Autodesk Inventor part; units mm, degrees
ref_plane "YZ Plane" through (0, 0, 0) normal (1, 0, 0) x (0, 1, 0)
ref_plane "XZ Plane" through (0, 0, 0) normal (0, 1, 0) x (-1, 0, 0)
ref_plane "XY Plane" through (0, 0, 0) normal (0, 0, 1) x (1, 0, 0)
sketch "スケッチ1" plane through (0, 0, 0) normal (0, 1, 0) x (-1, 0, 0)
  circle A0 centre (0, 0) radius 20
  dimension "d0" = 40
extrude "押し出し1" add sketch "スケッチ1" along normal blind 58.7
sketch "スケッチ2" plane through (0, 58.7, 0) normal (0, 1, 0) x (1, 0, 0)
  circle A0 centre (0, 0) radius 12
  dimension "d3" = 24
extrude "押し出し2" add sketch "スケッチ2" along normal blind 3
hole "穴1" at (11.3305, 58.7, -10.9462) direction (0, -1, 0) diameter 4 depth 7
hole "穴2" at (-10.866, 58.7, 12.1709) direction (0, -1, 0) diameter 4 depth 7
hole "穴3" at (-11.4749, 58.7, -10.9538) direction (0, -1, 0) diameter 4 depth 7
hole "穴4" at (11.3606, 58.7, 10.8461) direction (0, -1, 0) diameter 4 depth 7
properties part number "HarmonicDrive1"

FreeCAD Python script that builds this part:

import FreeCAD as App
import Part
import Sketcher

V = App.Vector

doc = App.newDocument("Part")
params = doc.addObject("Spreadsheet::Sheet", "Params")
for row, (alias, value) in enumerate([
    ("sketch1_diameter", "40 mm"),
    ("pad1_length", "58.7 mm"),
    ("sketch2_diameter", "24 mm"),
    ("pad2_length", "3 mm"),
    ("sketch3_diameter", "4 mm"),
    ("hole_diameter", "4 mm"),
    ("hole_depth", "7 mm"),
    ("sketch4_diameter", "4 mm"),
    ("hole2_diameter", "4 mm"),
    ("hole2_depth", "7 mm"),
    ("sketch5_diameter", "4 mm"),
    ("hole3_diameter", "4 mm"),
    ("hole3_depth", "7 mm"),
    ("sketch6_diameter", "4 mm"),
    ("hole4_diameter", "4 mm"),
    ("hole4_depth", "7 mm"),
], start=1):
    params.set(f"A{row}", alias)
    params.set(f"B{row}", "=" + value)
    params.setAlias(f"B{row}", alias)

body = doc.addObject("PartDesign::Body", "Body")

sketch1 = body.newObject("Sketcher::SketchObject", "Sketch")
sketch1.AttachmentSupport = (doc.getObject("XZ_Plane"), [""])
sketch1.MapMode = "FlatFace"
sketch1.addGeometry(Part.Circle(V(0, 0, 0), V(0, 0, 1), 20), False)
sketch1.addConstraint([
    Sketcher.Constraint("Coincident", 0, 3, -1, 1),
    Sketcher.Constraint("Diameter", 0, 40.0),
])
sketch1.setExpression("Constraints[1]", "Params.sketch1_diameter")
pad1 = body.newObject("PartDesign::Pad", "Pad")
pad1.Profile = sketch1
pad1.setExpression("Length", "Params.pad1_length")
pad1.Reversed = True

sketch2 = body.newObject("Sketcher::SketchObject", "Sketch001")
sketch2.AttachmentSupport = (doc.getObject("XZ_Plane"), [""])
sketch2.MapMode = "FlatFace"
sketch2.AttachmentOffset = App.Placement(V(0, 0, -58.7), App.Rotation())
sketch2.addGeometry(Part.Circle(V(0, 0, 0), V(0, 0, 1), 12), False)
sketch2.addConstraint([
    Sketcher.Constraint("Coincident", 0, 3, -1, 1),
    Sketcher.Constraint("Diameter", 0, 24.0),
])
sketch2.setExpression("Constraints[1]", "Params.sketch2_diameter")
pad2 = body.newObject("PartDesign::Pad", "Pad001")
pad2.Profile = sketch2
pad2.setExpression("Length", "Params.pad2_length")
pad2.Reversed = True

sketch3 = body.newObject("Sketcher::SketchObject", "Sketch002")
sketch3.AttachmentSupport = (doc.getObject("XZ_Plane"), [""])
sketch3.MapMode = "FlatFace"
sketch3.AttachmentOffset = App.Placement(V(0, 0, -58.7), App.Rotation())
sketch3.addGeometry(Part.Circle(V(11.3305, -10.9462, 0), V(0, 0, 1), 2), False)
sketch3.addConstraint([
    Sketcher.Constraint("Diameter", 0, 4.0),
    Sketcher.Constraint("DistanceX", -1, 1, 0, 3, 11.3305),
    Sketcher.Constraint("DistanceY", 0, 3, -1, 1, 10.9462),
])
sketch3.setExpression("Constraints[0]", "Params.sketch3_diameter")
doc.recompute()
hole = body.newObject("PartDesign::Hole", "Hole")
hole.Profile = sketch3
hole.ThreadType = "None"
hole.setExpression("Diameter", "Params.hole_diameter")
hole.DepthType = "Dimension"
hole.setExpression("Depth", "Params.hole_depth")
hole.DrillPoint = "Flat"
hole.Reversed = True

sketch4 = body.newObject("Sketcher::SketchObject", "Sketch003")
sketch4.AttachmentSupport = (doc.getObject("XZ_Plane"), [""])
sketch4.MapMode = "FlatFace"
sketch4.AttachmentOffset = App.Placement(V(0, 0, -58.7), App.Rotation())
sketch4.addGeometry(Part.Circle(V(-10.866, 12.1709, 0), V(0, 0, 1), 2), False)
sketch4.addConstraint([
    Sketcher.Constraint("Diameter", 0, 4.0),
    Sketcher.Constraint("DistanceX", 0, 3, -1, 1, 10.866),
    Sketcher.Constraint("DistanceY", -1, 1, 0, 3, 12.171),
])
sketch4.setExpression("Constraints[0]", "Params.sketch4_diameter")
doc.recompute()
hole2 = body.newObject("PartDesign::Hole", "Hole001")
hole2.Profile = sketch4
hole2.ThreadType = "None"
hole2.setExpression("Diameter", "Params.hole2_diameter")
hole2.DepthType = "Dimension"
hole2.setExpression("Depth", "Params.hole2_depth")
hole2.DrillPoint = "Flat"
hole2.Reversed = True

sketch5 = body.newObject("Sketcher::SketchObject", "Sketch004")
sketch5.AttachmentSupport = (doc.getObject("XZ_Plane"), [""])
sketch5.MapMode = "FlatFace"
sketch5.AttachmentOffset = App.Placement(V(0, 0, -58.7), App.Rotation())
sketch5.addGeometry(Part.Circle(V(-11.4749, -10.9538, 0), V(0, 0, 1), 2), False)
sketch5.addConstraint([
    Sketcher.Constraint("Diameter", 0, 4.0),
    Sketcher.Constraint("DistanceX", 0, 3, -1, 1, 11.475),
    Sketcher.Constraint("DistanceY", 0, 3, -1, 1, 10.9538),
])
sketch5.setExpression("Constraints[0]", "Params.sketch5_diameter")
doc.recompute()
hole3 = body.newObject("PartDesign::Hole", "Hole002")
hole3.Profile = sketch5
hole3.ThreadType = "None"
hole3.setExpression("Diameter", "Params.hole3_diameter")
hole3.DepthType = "Dimension"
hole3.setExpression("Depth", "Params.hole3_depth")
hole3.DrillPoint = "Flat"
hole3.Reversed = True

sketch6 = body.newObject("Sketcher::SketchObject", "Sketch005")
sketch6.AttachmentSupport = (doc.getObject("XZ_Plane"), [""])
sketch6.MapMode = "FlatFace"
sketch6.AttachmentOffset = App.Placement(V(0, 0, -58.7), App.Rotation())
sketch6.addGeometry(Part.Circle(V(11.3606, 10.8461, 0), V(0, 0, 1), 2), False)
sketch6.addConstraint([
    Sketcher.Constraint("Diameter", 0, 4.0),
    Sketcher.Constraint("DistanceY", -1, 1, 0, 3, 10.846),
    Sketcher.Constraint("DistanceX", -1, 1, 0, 3, 11.3606),
])
sketch6.setExpression("Constraints[0]", "Params.sketch6_diameter")
doc.recompute()
hole4 = body.newObject("PartDesign::Hole", "Hole003")
hole4.Profile = sketch6
hole4.ThreadType = "None"
hole4.setExpression("Diameter", "Params.hole4_diameter")
hole4.DepthType = "Dimension"
hole4.setExpression("Depth", "Params.hole4_depth")
hole4.DrillPoint = "Flat"
hole4.Reversed = True

doc.recompute()
